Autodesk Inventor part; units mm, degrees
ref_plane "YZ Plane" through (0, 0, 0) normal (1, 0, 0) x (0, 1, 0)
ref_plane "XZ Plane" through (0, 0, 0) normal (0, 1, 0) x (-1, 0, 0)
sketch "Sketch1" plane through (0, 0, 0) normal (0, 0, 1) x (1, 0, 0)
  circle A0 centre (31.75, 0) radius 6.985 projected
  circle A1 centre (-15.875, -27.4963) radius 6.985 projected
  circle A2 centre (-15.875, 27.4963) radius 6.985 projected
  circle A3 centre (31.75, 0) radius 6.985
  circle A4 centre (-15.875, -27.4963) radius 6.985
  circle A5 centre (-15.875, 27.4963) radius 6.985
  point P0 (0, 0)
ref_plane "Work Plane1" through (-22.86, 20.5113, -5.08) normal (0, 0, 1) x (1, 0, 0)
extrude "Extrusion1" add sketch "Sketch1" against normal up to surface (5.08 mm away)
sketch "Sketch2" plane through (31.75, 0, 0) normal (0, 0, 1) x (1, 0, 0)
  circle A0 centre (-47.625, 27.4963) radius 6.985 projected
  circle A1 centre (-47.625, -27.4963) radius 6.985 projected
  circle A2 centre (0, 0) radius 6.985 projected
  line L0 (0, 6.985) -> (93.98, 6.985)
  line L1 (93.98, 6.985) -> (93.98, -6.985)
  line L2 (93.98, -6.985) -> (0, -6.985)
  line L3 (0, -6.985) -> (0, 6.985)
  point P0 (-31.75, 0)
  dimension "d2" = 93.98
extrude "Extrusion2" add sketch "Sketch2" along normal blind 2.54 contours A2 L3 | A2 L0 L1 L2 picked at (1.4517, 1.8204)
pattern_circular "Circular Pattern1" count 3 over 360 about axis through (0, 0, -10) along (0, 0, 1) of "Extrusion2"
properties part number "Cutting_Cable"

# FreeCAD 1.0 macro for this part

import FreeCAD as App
import Part
import Sketcher

V = App.Vector
Q = App.Units.Quantity

doc = App.newDocument("Part")
body = doc.addObject("PartDesign::Body", "Body")
body.AllowCompound = True

# Sketch on XY plane
sketch1 = body.newObject("Sketcher::SketchObject", "Sketch")
sketch1.AttachmentSupport = (doc.getObject("XY_Plane"), [""])
sketch1.MapMode = "FlatFace"
sketch1.addGeometry([
    Part.Circle(V(32, 0, 0), V(0, 0, 1), 7),
    Part.Circle(V(-16, -27, 0), V(0, 0, 1), 7),
    Part.Circle(V(-16, 27, 0), V(0, 0, 1), 7),
], False)
sketch1.addConstraint([
    Sketcher.Constraint("Equal", 0, 1),
    Sketcher.Constraint("Equal", 1, 2),
    Sketcher.Constraint("Symmetric", 1, 3, 2, 3, -1),
    Sketcher.Constraint("PointOnObject", 0, 3, -1),
    Sketcher.Constraint("Diameter", 0, Q("0.55 in")),
    Sketcher.Constraint("DistanceX", -1, 1, 0, 3, Q("1.25 in")),
    Sketcher.Constraint("DistanceX", 1, 3, -1, 1, Q("0.625 in")),
    Sketcher.Constraint("DistanceY", 1, 3, -1, 1, 27.4963),
])
pad1 = body.newObject("PartDesign::Pad", "Pad")
pad1.Profile = sketch1
pad1.Length = Q("0.2 in")
pad1.Reversed = True

# Sketch on XY plane
sketch2 = body.newObject("Sketcher::SketchObject", "Sketch001")
sketch2.AttachmentSupport = (doc.getObject("XY_Plane"), [""])
sketch2.MapMode = "FlatFace"
sketch2.addGeometry([
    Part.LineSegment(V(32, 7, 0), V(32, -7, 0)),
    Part.LineSegment(V(32, -7, 0), V(126, -7, 0)),
    Part.LineSegment(V(126, -7, 0), V(126, 7, 0)),
    Part.LineSegment(V(126, 7, 0), V(32, 7, 0)),
], False)
sketch2.addConstraint([
    Sketcher.Constraint("Coincident", 0, 2, 1, 1),
    Sketcher.Constraint("Coincident", 1, 2, 2, 1),
    Sketcher.Constraint("Coincident", 2, 2, 3, 1),
    Sketcher.Constraint("Coincident", 3, 2, 0, 1),
    Sketcher.Constraint("Vertical", 0),
    Sketcher.Constraint("Horizontal", 1),
    Sketcher.Constraint("Vertical", 2),
    Sketcher.Constraint("Horizontal", 3),
    Sketcher.Constraint("DistanceX", 1, 1, 1, 2, Q("3.7 in")),
    Sketcher.Constraint("DistanceY", 0, 2, 0, 1, Q("0.55 in")),
    Sketcher.Constraint("DistanceX", -1, 1, 0, 2, Q("1.25 in")),
    Sketcher.Constraint("DistanceY", 0, 2, -1, 1, Q("0.275 in")),
])
pad2 = body.newObject("PartDesign::Pad", "Pad001")
pad2.Profile = sketch2
pad2.Length = Q("0.1 in")
doc.recompute()

polarpattern = body.newObject("PartDesign::PolarPattern", "PolarPattern")
polarpattern.Originals = [pad2]
polarpattern.Axis = (doc.getObject("Z_Axis"), [""])
polarpattern.Angle = 360
polarpattern.Occurrences = 3
body.Tip = polarpattern

doc.recompute()
